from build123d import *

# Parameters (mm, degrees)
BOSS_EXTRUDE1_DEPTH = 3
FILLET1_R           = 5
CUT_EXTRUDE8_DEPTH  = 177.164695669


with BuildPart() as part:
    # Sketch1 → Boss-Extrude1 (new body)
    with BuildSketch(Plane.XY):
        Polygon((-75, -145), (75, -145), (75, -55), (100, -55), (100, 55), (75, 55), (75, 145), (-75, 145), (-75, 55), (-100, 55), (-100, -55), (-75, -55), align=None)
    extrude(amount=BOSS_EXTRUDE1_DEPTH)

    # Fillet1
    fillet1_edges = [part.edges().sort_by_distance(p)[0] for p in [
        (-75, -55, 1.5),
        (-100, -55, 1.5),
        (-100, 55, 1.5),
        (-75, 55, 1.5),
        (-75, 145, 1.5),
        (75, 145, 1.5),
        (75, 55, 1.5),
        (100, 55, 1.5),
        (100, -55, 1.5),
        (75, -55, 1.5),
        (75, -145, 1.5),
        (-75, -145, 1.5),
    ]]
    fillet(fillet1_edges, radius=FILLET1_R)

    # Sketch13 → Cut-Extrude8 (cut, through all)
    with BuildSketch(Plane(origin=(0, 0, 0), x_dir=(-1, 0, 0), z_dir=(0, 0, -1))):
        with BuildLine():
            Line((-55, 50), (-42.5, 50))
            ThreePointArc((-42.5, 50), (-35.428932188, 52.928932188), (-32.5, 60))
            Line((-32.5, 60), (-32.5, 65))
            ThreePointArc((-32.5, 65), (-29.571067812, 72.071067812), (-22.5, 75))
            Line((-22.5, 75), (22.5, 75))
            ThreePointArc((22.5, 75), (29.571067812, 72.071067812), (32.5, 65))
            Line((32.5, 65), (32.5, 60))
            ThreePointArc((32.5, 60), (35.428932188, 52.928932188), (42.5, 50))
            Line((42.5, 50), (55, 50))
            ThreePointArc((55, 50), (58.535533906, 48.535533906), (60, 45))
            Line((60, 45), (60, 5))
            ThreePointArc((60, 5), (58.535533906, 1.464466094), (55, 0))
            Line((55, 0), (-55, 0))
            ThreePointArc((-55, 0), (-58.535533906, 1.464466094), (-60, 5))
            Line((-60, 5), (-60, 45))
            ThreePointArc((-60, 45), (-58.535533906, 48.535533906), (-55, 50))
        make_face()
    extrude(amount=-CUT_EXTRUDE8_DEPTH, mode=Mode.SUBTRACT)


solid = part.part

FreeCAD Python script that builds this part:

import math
import FreeCAD as App
import Part
import Sketcher

V = App.Vector
Q = App.Units.Quantity


def edges_at(feature, points):
    """Names of the edges that pass closest to the given points."""
    edges = feature.Shape.Edges
    near = lambda p: min(range(len(edges)), key=lambda i: edges[i].distToShape(Part.Vertex(*p))[0])
    return sorted({f"Edge{near(p) + 1}" for p in points})


def add_polygon(sketch, points):
    """Adds a closed chain of lines whose ends are joined by coincident constraints."""
    first, n = sketch.GeometryCount, len(points)
    for a, b in zip(points, points[1:] + points[:1]):
        sketch.addGeometry(Part.LineSegment(App.Vector(*a, 0), App.Vector(*b, 0)), False)
    for i in range(n):
        sketch.addConstraint(Sketcher.Constraint("Coincident", first + i, 2, first + (i + 1) % n, 1))

doc = App.newDocument("Part")
body = doc.addObject("PartDesign::Body", "Body")

# Sketch on XY plane
sketch1 = body.newObject("Sketcher::SketchObject", "Sketch")
sketch1.AttachmentSupport = (doc.getObject("XY_Plane"), [""])
sketch1.MapMode = "FlatFace"
add_polygon(sketch1, [(-75, -145), (75, -145), (75, -55), (100, -55), (100, 55), (75, 55), (75, 145), (-75, 145), (-75, 55), (-100, 55), (-100, -55), (-75, -55)])  # lines 0-11
sketch1.addConstraint(Sketcher.Constraint("Horizontal", 0))
sketch1.addConstraint(Sketcher.Constraint("Vertical", 1))
sketch1.addConstraint(Sketcher.Constraint("Horizontal", 2))
sketch1.addConstraint(Sketcher.Constraint("Vertical", 3))
sketch1.addConstraint(Sketcher.Constraint("Horizontal", 4))
sketch1.addConstraint(Sketcher.Constraint("Vertical", 5))
sketch1.addConstraint(Sketcher.Constraint("Horizontal", 6))
sketch1.addConstraint(Sketcher.Constraint("Vertical", 7))
sketch1.addConstraint(Sketcher.Constraint("Horizontal", 8))
sketch1.addConstraint(Sketcher.Constraint("Vertical", 9))
sketch1.addConstraint(Sketcher.Constraint("Horizontal", 10))
sketch1.addConstraint(Sketcher.Constraint("Vertical", 11))
sketch1.addConstraint(Sketcher.Constraint("Symmetric", 0, 2, 6, 2, -1, 1))
sketch1.addConstraint(Sketcher.Constraint("Symmetric", 2, 2, 8, 2, -1, 1))
sketch1.addConstraint(Sketcher.Constraint("Symmetric", 4, 2, 10, 2, -1, 1))
sketch1.addConstraint(Sketcher.Constraint("Symmetric", 4, 2, 7, 2, -2))
sketch1.addConstraint(Sketcher.Constraint("DistanceX", 0, 1, 0, 2, Q("150 mm")))
sketch1.addConstraint(Sketcher.Constraint("DistanceX", 2, 1, 2, 2, Q("25 mm")))
sketch1.addConstraint(Sketcher.Constraint("DistanceY", 1, 1, 1, 2, Q("90 mm")))
sketch1.addConstraint(Sketcher.Constraint("DistanceY", 3, 1, 3, 2, Q("110 mm")))
pad1 = body.newObject("PartDesign::Pad", "Pad")
pad1.Profile = sketch1
pad1.Length = 3
doc.recompute()

fillet = body.newObject("PartDesign::Fillet", "Fillet")
fillet.Base = (pad1, edges_at(pad1, [
    (-75, -55, 1.5),
    (-100, -55, 1.5),
    (-100, 55, 1.5),
    (-75, 55, 1.5),
    (-75, 145, 1.5),
    (75, 145, 1.5),
    (75, 55, 1.5),
    (100, 55, 1.5),
    (100, -55, 1.5),
    (75, -55, 1.5),
    (75, -145, 1.5),
    (-75, -145, 1.5),
]))
fillet.Radius = 5

# Sketch on XY plane
sketch2 = body.newObject("Sketcher::SketchObject", "Sketch001")
sketch2.AttachmentSupport = (doc.getObject("XY_Plane"), [""])
sketch2.MapMode = "FlatFace"
sketch2.addGeometry(Part.LineSegment(V(42.5, 50, 0), V(55, 50, 0)), False)
sketch2.addGeometry(Part.ArcOfCircle(Part.Circle(V(55, 45, 0), V(0, 0, 1), 5), math.radians(0), math.radians(90)), False)
sketch2.addGeometry(Part.LineSegment(V(60, 45, 0), V(60, 5, 0)), False)
sketch2.addGeometry(Part.ArcOfCircle(Part.Circle(V(55, 5, 0), V(0, 0, 1), 5), math.radians(-90), math.radians(0)), False)
sketch2.addGeometry(Part.LineSegment(V(55, 0, 0), V(-55, 0, 0)), False)
sketch2.addGeometry(Part.ArcOfCircle(Part.Circle(V(-55, 5, 0), V(0, 0, 1), 5), math.radians(180), math.radians(270)), False)
sketch2.addGeometry(Part.LineSegment(V(-60, 5, 0), V(-60, 45, 0)), False)
sketch2.addGeometry(Part.ArcOfCircle(Part.Circle(V(-55, 45, 0), V(0, 0, 1), 5), math.radians(90), math.radians(180)), False)
sketch2.addGeometry(Part.LineSegment(V(-55, 50, 0), V(-42.5, 50, 0)), False)
sketch2.addGeometry(Part.ArcOfCircle(Part.Circle(V(-42.5, 60, 0), V(0, 0, 1), 10), math.radians(-90), math.radians(0)), False)
sketch2.addGeometry(Part.LineSegment(V(-32.5, 60, 0), V(-32.5, 65, 0)), False)
sketch2.addGeometry(Part.ArcOfCircle(Part.Circle(V(-22.5, 65, 0), V(0, 0, 1), 10), math.radians(90), math.radians(180)), False)
sketch2.addGeometry(Part.LineSegment(V(-22.5, 75, 0), V(22.5, 75, 0)), False)
sketch2.addGeometry(Part.ArcOfCircle(Part.Circle(V(22.5, 65, 0), V(0, 0, 1), 10), math.radians(0), math.radians(90)), False)
sketch2.addGeometry(Part.LineSegment(V(32.5, 65, 0), V(32.5, 60, 0)), False)
sketch2.addGeometry(Part.ArcOfCircle(Part.Circle(V(42.5, 60, 0), V(0, 0, 1), 10), math.radians(180), math.radians(270)), False)
sketch2.addConstraint(Sketcher.Constraint("Tangent", 0, 2, 1, 2))
sketch2.addConstraint(Sketcher.Constraint("Tangent", 1, 1, 2, 1))
sketch2.addConstraint(Sketcher.Constraint("Tangent", 2, 2, 3, 2))
sketch2.addConstraint(Sketcher.Constraint("Tangent", 3, 1, 4, 1))
sketch2.addConstraint(Sketcher.Constraint("Tangent", 4, 2, 5, 2))
sketch2.addConstraint(Sketcher.Constraint("Tangent", 5, 1, 6, 1))
sketch2.addConstraint(Sketcher.Constraint("Tangent", 6, 2, 7, 2))
sketch2.addConstraint(Sketcher.Constraint("Tangent", 7, 1, 8, 1))
sketch2.addConstraint(Sketcher.Constraint("Tangent", 8, 2, 9, 1))
sketch2.addConstraint(Sketcher.Constraint("Tangent", 9, 2, 10, 1))
sketch2.addConstraint(Sketcher.Constraint("Tangent", 10, 2, 11, 2))
sketch2.addConstraint(Sketcher.Constraint("Tangent", 11, 1, 12, 1))
sketch2.addConstraint(Sketcher.Constraint("Tangent", 12, 2, 13, 2))
sketch2.addConstraint(Sketcher.Constraint("Tangent", 13, 1, 14, 1))
sketch2.addConstraint(Sketcher.Constraint("Tangent", 14, 2, 15, 1))
sketch2.addConstraint(Sketcher.Constraint("Tangent", 15, 2, 0, 1))
sketch2.addConstraint(Sketcher.Constraint("Horizontal", 0))
sketch2.addConstraint(Sketcher.Constraint("Vertical", 2))
sketch2.addConstraint(Sketcher.Constraint("Horizontal", 4))
sketch2.addConstraint(Sketcher.Constraint("Vertical", 6))
sketch2.addConstraint(Sketcher.Constraint("Horizontal", 8))
sketch2.addConstraint(Sketcher.Constraint("Vertical", 10))
sketch2.addConstraint(Sketcher.Constraint("Horizontal", 12))
sketch2.addConstraint(Sketcher.Constraint("Vertical", 14))
sketch2.addConstraint(Sketcher.Constraint("Equal", 1, 3))
sketch2.addConstraint(Sketcher.Constraint("Equal", 3, 5))
sketch2.addConstraint(Sketcher.Constraint("Equal", 5, 7))
sketch2.addConstraint(Sketcher.Constraint("Equal", 9, 11))
sketch2.addConstraint(Sketcher.Constraint("Equal", 11, 13))
sketch2.addConstraint(Sketcher.Constraint("Equal", 13, 15))
sketch2.addConstraint(Sketcher.Constraint("Symmetric", 3, 1, 4, 2, -1, 1))
sketch2.addConstraint(Sketcher.Constraint("Symmetric", 9, 3, 15, 3, -2))
sketch2.addConstraint(Sketcher.Constraint("Radius", 1, Q("5 mm")))
sketch2.addConstraint(Sketcher.Constraint("Radius", 9, Q("10 mm")))
sketch2.addConstraint(Sketcher.Constraint("DistanceX", 4, 2, 4, 1, Q("110 mm")))
sketch2.addConstraint(Sketcher.Constraint("DistanceX", 12, 1, 12, 2, Q("45 mm")))
sketch2.addConstraint(Sketcher.Constraint("DistanceY", 2, 2, 2, 1, Q("40 mm")))
sketch2.addConstraint(Sketcher.Constraint("DistanceY", 10, 1, 10, 2, Q("5 mm")))
pocket1 = body.newObject("PartDesign::Pocket", "Pocket")
pocket1.Profile = sketch2
pocket1.Type = "ThroughAll"
pocket1.Reversed = True

doc.recompute()
